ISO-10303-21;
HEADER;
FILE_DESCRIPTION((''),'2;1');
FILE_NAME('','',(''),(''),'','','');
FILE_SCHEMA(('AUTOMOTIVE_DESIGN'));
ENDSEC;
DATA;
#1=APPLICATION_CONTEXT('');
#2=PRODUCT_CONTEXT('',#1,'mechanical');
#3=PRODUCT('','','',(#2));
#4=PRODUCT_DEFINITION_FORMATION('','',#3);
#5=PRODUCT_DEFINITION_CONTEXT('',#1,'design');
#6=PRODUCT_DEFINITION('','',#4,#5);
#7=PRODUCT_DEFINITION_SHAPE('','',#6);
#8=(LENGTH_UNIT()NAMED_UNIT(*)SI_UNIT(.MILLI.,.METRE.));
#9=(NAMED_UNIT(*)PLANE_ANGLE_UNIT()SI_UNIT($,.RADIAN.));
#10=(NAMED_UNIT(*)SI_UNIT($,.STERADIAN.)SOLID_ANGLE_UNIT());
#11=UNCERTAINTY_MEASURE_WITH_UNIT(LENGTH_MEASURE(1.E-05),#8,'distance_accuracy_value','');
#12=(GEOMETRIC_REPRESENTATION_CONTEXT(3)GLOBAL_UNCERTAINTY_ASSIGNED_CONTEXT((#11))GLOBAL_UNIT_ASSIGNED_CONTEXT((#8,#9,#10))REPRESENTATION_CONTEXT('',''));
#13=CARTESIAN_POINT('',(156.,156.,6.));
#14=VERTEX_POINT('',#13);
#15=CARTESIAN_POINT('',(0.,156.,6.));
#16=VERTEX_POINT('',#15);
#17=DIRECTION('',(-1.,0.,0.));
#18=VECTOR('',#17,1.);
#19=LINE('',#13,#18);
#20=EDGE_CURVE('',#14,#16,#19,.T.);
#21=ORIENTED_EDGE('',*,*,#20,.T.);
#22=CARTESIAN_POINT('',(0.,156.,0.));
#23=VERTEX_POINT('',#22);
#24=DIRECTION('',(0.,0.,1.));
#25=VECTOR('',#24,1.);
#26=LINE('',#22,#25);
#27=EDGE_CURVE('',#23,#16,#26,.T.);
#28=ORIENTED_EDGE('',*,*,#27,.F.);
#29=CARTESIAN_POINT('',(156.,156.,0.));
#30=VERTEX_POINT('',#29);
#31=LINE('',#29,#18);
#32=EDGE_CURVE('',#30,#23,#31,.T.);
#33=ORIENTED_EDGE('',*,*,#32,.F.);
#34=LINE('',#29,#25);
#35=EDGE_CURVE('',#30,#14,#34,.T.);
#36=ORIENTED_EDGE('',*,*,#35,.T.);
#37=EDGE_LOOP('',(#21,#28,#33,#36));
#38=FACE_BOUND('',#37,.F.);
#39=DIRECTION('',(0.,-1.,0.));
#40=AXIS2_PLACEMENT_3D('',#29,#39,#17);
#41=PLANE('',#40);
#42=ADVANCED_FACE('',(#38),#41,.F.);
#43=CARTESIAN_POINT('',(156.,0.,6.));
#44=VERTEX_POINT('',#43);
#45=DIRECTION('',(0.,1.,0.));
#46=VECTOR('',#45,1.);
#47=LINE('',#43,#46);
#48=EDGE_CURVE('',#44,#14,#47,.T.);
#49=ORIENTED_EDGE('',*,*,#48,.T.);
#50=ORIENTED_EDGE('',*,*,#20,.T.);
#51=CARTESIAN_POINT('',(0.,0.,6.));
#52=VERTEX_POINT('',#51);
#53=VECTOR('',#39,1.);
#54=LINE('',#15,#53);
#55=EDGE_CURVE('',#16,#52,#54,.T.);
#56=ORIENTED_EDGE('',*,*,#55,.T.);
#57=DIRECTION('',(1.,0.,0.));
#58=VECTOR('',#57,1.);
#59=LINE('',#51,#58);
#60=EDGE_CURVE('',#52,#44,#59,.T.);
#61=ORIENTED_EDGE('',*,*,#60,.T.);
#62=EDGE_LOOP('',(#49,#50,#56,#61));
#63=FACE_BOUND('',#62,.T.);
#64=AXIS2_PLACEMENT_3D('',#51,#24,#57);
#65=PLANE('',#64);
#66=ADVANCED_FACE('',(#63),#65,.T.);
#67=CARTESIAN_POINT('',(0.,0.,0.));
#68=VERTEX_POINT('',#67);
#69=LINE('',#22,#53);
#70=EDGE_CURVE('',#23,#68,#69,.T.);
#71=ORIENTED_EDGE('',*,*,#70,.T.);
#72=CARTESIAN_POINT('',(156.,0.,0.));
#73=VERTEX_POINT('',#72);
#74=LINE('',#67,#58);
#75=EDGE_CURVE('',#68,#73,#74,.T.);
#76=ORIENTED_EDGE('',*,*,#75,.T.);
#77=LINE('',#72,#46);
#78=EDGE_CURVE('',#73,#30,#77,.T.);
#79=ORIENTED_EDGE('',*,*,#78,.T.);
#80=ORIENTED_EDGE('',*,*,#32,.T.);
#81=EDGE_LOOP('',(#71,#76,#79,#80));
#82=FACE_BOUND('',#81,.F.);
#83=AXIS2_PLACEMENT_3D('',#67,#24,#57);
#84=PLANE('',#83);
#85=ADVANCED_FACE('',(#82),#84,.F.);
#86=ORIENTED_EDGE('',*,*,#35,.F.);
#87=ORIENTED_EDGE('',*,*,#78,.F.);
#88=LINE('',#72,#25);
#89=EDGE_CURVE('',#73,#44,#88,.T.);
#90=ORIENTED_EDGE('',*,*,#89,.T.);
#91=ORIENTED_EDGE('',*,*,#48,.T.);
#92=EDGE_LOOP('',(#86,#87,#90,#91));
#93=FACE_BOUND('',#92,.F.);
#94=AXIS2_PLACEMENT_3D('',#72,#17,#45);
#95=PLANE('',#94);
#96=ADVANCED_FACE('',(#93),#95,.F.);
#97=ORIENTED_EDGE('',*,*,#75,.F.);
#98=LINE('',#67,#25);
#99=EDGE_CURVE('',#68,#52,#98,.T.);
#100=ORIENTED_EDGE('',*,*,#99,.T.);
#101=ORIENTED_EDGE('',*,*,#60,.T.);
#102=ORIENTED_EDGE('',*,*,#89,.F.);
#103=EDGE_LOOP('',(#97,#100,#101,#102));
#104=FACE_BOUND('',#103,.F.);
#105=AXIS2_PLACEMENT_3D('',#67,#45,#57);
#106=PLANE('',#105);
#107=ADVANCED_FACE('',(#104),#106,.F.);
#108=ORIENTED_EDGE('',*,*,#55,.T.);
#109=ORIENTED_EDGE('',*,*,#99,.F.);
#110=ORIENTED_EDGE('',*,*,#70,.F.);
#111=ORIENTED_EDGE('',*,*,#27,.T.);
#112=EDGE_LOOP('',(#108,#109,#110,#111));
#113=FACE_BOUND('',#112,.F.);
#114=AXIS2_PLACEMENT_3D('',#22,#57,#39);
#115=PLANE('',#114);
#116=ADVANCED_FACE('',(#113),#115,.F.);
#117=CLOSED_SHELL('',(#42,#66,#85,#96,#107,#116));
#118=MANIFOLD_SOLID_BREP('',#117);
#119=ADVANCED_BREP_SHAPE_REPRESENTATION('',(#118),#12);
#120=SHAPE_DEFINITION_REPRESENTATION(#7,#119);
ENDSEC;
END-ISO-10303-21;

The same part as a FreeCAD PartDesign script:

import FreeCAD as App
import Part
import Sketcher
Q = App.Units.Quantity


def add_polygon(sketch, points):
    """Adds a closed chain of lines whose ends are joined by coincident constraints."""
    first, n = sketch.GeometryCount, len(points)
    for a, b in zip(points, points[1:] + points[:1]):
        sketch.addGeometry(Part.LineSegment(App.Vector(*a, 0), App.Vector(*b, 0)), False)
    for i in range(n):
        sketch.addConstraint(Sketcher.Constraint("Coincident", first + i, 2, first + (i + 1) % n, 1))

doc = App.newDocument("Part")
params = doc.addObject("Spreadsheet::Sheet", "Params")
for row, (alias, value) in enumerate([
    ("sketch1_width", "156 mm"),
    ("pad1_length", "6 mm"),
], start=1):
    params.set(f"A{row}", alias)
    params.set(f"B{row}", "=" + value)
    params.setAlias(f"B{row}", alias)

body = doc.addObject("PartDesign::Body", "Body")

# Sketch on XY plane
sketch1 = doc.addObject("Sketcher::SketchObject", "Sketch")
body.addObject(sketch1)
sketch1.AttachmentSupport = (doc.XY_Plane, [""])
sketch1.MapMode = "FlatFace"
add_polygon(sketch1, [(0, 156), (0, 0), (156, 0), (156, 156)])  # lines 0-3
sketch1.addConstraint([
    Sketcher.Constraint("Vertical", 0),
    Sketcher.Constraint("Horizontal", 1),
    Sketcher.Constraint("Vertical", 2),
    Sketcher.Constraint("Horizontal", 3),
    Sketcher.Constraint("Coincident", 0, 2, -1, 1),
    Sketcher.Constraint("Equal", 3, 0),
    Sketcher.Constraint("DistanceX", 1, 1, 1, 2, Q("156 mm")),
])
sketch1.setExpression("Constraints[10]", "Params.sketch1_width")
pad1 = doc.addObject("PartDesign::Pad", "Pad")
body.addObject(pad1)
pad1.Profile = sketch1
pad1.setExpression("Length", "Params.pad1_length")

doc.recompute()
